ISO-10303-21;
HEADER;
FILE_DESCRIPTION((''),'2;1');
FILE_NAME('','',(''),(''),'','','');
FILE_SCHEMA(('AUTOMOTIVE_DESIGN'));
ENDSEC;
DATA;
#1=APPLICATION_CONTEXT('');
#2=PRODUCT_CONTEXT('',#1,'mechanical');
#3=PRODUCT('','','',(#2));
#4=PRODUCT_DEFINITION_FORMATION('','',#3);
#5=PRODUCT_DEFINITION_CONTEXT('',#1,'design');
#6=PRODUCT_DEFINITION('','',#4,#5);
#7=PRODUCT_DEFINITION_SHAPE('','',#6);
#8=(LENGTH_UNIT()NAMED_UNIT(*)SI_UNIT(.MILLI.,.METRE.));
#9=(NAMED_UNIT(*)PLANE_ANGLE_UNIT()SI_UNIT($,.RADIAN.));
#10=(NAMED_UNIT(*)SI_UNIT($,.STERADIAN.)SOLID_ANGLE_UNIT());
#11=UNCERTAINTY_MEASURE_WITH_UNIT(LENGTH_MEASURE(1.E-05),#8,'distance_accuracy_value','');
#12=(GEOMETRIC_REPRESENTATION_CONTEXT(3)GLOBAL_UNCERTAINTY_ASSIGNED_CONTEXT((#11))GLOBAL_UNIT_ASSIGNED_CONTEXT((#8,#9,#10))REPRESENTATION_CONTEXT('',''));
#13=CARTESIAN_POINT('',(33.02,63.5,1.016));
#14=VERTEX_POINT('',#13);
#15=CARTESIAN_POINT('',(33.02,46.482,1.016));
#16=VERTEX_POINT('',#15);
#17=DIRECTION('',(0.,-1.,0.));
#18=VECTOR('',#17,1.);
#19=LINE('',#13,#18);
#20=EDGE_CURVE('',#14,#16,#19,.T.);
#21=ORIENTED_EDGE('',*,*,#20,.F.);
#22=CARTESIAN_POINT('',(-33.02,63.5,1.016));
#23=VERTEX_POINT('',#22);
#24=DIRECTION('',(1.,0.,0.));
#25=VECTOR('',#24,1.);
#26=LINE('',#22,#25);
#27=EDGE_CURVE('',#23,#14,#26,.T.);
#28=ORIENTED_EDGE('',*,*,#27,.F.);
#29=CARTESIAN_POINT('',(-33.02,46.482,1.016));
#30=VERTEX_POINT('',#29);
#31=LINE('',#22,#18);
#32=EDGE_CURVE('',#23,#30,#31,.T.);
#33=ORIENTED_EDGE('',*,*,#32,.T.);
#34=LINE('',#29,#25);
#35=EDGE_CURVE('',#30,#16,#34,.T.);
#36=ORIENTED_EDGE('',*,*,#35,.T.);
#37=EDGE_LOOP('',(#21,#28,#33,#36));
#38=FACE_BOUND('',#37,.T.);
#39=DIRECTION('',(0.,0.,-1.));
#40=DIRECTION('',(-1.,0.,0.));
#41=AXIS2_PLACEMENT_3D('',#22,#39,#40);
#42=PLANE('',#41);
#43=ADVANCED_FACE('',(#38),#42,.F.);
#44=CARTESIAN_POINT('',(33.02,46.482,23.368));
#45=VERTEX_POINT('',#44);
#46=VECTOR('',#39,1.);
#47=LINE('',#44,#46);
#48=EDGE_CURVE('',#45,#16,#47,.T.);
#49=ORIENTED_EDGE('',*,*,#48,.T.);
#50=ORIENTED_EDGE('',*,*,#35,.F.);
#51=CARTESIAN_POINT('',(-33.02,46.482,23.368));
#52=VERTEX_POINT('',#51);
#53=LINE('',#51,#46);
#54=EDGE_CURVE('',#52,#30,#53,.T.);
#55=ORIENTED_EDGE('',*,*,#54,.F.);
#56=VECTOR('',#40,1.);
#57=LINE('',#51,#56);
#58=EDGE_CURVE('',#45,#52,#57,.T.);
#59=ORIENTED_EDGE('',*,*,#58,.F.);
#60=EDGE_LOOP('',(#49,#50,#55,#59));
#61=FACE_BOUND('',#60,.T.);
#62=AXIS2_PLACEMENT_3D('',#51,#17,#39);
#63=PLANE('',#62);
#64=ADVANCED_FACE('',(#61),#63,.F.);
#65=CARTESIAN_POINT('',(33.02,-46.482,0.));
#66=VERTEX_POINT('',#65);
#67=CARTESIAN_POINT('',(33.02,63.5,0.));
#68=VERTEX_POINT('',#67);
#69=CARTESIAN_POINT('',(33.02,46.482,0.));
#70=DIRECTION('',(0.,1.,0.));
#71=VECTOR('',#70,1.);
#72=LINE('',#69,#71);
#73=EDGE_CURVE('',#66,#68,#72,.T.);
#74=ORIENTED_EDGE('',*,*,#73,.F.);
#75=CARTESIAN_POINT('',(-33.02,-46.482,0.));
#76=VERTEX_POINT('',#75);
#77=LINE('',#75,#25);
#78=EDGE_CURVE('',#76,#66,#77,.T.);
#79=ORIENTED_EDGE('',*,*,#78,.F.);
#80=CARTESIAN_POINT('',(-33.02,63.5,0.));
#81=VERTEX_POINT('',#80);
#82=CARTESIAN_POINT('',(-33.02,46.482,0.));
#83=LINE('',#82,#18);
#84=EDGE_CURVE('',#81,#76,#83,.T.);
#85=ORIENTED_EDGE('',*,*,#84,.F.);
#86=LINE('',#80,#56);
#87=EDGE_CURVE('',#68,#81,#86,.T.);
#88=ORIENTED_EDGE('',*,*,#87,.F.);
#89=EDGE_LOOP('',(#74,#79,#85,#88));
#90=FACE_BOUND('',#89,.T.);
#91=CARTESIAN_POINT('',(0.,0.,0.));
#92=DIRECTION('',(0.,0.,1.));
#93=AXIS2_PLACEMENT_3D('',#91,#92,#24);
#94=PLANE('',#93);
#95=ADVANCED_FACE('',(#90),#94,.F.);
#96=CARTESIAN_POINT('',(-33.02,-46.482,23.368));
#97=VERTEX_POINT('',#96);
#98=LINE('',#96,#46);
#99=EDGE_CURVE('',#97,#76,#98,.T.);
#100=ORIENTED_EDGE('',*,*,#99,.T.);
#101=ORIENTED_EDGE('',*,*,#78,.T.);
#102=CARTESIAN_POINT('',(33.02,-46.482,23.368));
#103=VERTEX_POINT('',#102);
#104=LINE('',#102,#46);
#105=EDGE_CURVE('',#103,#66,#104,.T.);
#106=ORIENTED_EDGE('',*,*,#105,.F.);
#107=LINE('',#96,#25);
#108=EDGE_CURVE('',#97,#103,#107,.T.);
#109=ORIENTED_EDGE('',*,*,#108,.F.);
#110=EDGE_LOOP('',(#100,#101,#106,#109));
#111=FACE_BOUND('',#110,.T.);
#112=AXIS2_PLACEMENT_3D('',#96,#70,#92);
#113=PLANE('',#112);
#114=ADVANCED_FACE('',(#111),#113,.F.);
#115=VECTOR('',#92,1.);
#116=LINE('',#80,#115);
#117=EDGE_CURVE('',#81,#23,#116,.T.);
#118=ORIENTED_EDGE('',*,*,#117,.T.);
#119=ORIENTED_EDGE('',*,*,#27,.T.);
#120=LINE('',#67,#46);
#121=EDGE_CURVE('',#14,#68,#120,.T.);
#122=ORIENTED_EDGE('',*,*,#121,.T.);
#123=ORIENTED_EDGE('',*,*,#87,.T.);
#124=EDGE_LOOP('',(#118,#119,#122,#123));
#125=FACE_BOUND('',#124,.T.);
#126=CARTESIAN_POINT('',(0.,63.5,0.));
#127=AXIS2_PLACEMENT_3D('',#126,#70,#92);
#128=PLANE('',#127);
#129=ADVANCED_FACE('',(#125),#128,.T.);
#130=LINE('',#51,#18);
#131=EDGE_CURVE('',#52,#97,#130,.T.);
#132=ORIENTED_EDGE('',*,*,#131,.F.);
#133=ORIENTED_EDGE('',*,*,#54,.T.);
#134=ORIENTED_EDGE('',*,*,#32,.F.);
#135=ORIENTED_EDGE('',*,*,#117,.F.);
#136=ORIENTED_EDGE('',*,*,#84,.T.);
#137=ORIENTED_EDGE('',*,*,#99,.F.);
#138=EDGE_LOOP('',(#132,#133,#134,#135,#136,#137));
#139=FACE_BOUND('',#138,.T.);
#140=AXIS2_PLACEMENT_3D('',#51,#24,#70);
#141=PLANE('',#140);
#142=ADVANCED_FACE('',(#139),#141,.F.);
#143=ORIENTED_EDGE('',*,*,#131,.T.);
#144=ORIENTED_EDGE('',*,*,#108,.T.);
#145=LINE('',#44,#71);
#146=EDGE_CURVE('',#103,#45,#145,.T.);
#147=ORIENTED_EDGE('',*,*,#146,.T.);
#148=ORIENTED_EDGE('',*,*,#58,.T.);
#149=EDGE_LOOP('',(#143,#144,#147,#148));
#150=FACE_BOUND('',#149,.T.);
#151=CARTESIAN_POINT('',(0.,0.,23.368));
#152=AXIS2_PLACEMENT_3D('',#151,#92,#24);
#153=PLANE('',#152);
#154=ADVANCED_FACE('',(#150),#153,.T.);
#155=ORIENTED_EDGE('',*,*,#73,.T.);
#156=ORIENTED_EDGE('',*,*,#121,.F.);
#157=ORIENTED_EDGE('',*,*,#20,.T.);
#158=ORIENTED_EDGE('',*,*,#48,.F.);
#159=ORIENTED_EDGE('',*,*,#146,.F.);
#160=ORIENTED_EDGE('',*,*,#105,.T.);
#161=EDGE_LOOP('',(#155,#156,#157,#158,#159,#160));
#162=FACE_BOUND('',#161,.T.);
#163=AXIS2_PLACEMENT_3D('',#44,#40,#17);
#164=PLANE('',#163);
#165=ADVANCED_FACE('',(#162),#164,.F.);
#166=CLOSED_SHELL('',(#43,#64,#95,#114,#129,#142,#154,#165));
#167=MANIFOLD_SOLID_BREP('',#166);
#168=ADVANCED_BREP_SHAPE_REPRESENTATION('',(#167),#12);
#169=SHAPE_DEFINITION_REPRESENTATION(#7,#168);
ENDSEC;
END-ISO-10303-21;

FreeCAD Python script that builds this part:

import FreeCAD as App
import Part
import Sketcher
Q = App.Units.Quantity


def add_polygon(sketch, points):
    """Adds a closed chain of lines whose ends are joined by coincident constraints."""
    first, n = sketch.GeometryCount, len(points)
    for a, b in zip(points, points[1:] + points[:1]):
        sketch.addGeometry(Part.LineSegment(App.Vector(*a, 0), App.Vector(*b, 0)), False)
    for i in range(n):
        sketch.addConstraint(Sketcher.Constraint("Coincident", first + i, 2, first + (i + 1) % n, 1))

doc = App.newDocument("Part")
params = doc.addObject("Spreadsheet::Sheet", "Params")
for row, (alias, value) in enumerate([
    ("sketch1_width", "2.6 in"),
    ("sketch1_height", "3.66 in"),
    ("pad1_length", "0.92 in"),
    ("sketch2_width", "2.6 in"),
    ("sketch2_height", "0.04 in"),
    ("pad2_length", "0.67 in"),
], start=1):
    params.set(f"A{row}", alias)
    params.set(f"B{row}", "=" + value)
    params.setAlias(f"B{row}", alias)

body = doc.addObject("PartDesign::Body", "Body")

# Sketch on XY plane
sketch1 = body.newObject("Sketcher::SketchObject", "Sketch")
sketch1.AttachmentSupport = (doc.getObject("XY_Plane"), [""])
sketch1.MapMode = "FlatFace"
add_polygon(sketch1, [(-33, 46), (-33, -46), (33, -46), (33, 46)])  # lines 0-3
sketch1.addConstraint([
    Sketcher.Constraint("Vertical", 0),
    Sketcher.Constraint("Horizontal", 1),
    Sketcher.Constraint("Vertical", 2),
    Sketcher.Constraint("Horizontal", 3),
    Sketcher.Constraint("Symmetric", 0, 2, 2, 2, -1, 1),
    Sketcher.Constraint("DistanceX", 1, 1, 1, 2, Q("2.6 in")),
    Sketcher.Constraint("DistanceY", 0, 2, 0, 1, Q("3.66 in")),
])
sketch1.setExpression("Constraints[9]", "Params.sketch1_width")
sketch1.setExpression("Constraints[10]", "Params.sketch1_height")
pad1 = body.newObject("PartDesign::Pad", "Pad")
pad1.Profile = sketch1
pad1.setExpression("Length", "Params.pad1_length")

# Sketch on XZ plane
sketch2 = body.newObject("Sketcher::SketchObject", "Sketch001")
sketch2.AttachmentSupport = (doc.getObject("XZ_Plane"), [""])
sketch2.MapMode = "FlatFace"
sketch2.AttachmentOffset = App.Placement(App.Vector(0, 0, -1.83 * 25.4), App.Rotation())
add_polygon(sketch2, [(-33, 0), (-33, 1), (33, 1), (33, 0)])  # lines 0-3
sketch2.addConstraint([
    Sketcher.Constraint("Vertical", 0),
    Sketcher.Constraint("Horizontal", 1),
    Sketcher.Constraint("Vertical", 2),
    Sketcher.Constraint("Horizontal", 3),
    Sketcher.Constraint("Symmetric", 2, 2, 3, 2, -1, 1),
    Sketcher.Constraint("DistanceX", 1, 1, 1, 2, Q("2.6 in")),
    Sketcher.Constraint("DistanceY", 0, 1, 0, 2, Q("0.04 in")),
])
sketch2.setExpression("Constraints[9]", "Params.sketch2_width")
sketch2.setExpression("Constraints[10]", "Params.sketch2_height")
pad2 = body.newObject("PartDesign::Pad", "Pad001")
pad2.Profile = sketch2
pad2.setExpression("Length", "Params.pad2_length")
pad2.Reversed = True

doc.recompute()
